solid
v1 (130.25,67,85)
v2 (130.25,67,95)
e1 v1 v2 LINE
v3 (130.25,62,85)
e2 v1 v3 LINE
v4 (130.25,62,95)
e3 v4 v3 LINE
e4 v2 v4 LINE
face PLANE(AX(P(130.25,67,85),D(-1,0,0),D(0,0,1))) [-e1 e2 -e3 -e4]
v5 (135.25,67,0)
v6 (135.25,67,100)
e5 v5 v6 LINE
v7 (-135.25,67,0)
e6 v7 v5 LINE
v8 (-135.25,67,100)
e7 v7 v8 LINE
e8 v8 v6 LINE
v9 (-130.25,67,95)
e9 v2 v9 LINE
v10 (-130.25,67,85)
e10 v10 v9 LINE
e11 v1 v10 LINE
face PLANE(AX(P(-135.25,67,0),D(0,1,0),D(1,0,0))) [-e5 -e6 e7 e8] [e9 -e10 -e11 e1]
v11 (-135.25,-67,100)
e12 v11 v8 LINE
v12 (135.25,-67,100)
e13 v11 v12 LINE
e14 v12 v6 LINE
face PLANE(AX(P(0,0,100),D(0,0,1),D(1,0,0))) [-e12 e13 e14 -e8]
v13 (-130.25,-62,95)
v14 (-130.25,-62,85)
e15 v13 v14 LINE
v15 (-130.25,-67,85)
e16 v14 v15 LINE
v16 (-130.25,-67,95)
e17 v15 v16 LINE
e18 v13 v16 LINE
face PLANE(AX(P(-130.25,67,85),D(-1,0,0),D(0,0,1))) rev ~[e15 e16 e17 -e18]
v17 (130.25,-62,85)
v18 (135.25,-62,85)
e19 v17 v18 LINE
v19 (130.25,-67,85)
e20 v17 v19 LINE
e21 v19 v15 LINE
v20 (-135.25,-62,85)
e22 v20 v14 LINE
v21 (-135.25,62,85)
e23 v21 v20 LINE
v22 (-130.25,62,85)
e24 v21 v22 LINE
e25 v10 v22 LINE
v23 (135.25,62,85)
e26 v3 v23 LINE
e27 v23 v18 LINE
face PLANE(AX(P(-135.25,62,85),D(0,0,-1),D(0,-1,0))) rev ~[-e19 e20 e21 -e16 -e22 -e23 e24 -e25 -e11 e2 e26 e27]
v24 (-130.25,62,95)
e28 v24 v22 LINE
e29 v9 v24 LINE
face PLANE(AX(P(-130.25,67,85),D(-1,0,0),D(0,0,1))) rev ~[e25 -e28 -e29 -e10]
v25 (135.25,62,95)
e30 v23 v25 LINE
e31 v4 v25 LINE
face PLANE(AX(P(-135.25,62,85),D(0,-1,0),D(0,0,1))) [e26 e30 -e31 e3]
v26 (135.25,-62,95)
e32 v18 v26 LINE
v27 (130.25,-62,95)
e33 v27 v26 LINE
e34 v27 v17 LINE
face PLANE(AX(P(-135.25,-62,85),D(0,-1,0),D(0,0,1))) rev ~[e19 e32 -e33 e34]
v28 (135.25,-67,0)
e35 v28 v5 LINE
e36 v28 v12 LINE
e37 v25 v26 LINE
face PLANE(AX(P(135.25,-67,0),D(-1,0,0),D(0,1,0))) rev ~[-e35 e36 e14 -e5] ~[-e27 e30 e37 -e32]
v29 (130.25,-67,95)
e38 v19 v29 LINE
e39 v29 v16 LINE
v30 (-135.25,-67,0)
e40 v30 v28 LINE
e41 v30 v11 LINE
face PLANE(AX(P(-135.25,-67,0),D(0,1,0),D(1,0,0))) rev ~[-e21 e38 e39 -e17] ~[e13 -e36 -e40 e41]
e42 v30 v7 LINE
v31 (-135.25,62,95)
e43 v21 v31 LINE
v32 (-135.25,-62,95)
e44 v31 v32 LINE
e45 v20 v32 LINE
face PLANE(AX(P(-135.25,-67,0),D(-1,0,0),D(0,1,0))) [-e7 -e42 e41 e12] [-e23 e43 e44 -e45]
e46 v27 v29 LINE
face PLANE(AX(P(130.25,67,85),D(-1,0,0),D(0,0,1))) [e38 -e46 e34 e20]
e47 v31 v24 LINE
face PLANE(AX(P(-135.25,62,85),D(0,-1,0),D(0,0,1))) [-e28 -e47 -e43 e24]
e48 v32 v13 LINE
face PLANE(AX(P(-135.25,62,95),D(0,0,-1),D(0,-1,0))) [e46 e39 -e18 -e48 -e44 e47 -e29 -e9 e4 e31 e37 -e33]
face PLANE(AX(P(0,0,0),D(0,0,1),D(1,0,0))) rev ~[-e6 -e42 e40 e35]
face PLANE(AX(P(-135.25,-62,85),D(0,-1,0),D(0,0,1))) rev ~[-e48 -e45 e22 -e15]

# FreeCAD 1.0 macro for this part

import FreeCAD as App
import Part
import Sketcher


def add_polygon(sketch, points):
    """Adds a closed chain of lines whose ends are joined by coincident constraints."""
    first, n = sketch.GeometryCount, len(points)
    for a, b in zip(points, points[1:] + points[:1]):
        sketch.addGeometry(Part.LineSegment(App.Vector(*a, 0), App.Vector(*b, 0)), False)
    for i in range(n):
        sketch.addConstraint(Sketcher.Constraint("Coincident", first + i, 2, first + (i + 1) % n, 1))

doc = App.newDocument("Part")
body = doc.addObject("PartDesign::Body", "Body")

# Sketch on XY plane
sketch1 = body.newObject("Sketcher::SketchObject", "Sketch")
sketch1.AttachmentSupport = (doc.getObject("XY_Plane"), [""])
sketch1.MapMode = "FlatFace"
add_polygon(sketch1, [(-135, 67), (-135, -67), (135, -67), (135, 67)])  # lines 0-3
sketch1.addConstraint(Sketcher.Constraint("Vertical", 0))
sketch1.addConstraint(Sketcher.Constraint("Horizontal", 1))
sketch1.addConstraint(Sketcher.Constraint("Vertical", 2))
sketch1.addConstraint(Sketcher.Constraint("Horizontal", 3))
sketch1.addConstraint(Sketcher.Constraint("Symmetric", 0, 2, 2, 2, -1, 1))
sketch1.addConstraint(Sketcher.Constraint("DistanceY", 0, 2, 0, 1, 134.0))
sketch1.addConstraint(Sketcher.Constraint("DistanceX", 1, 1, 1, 2, 270.5))
pad1 = body.newObject("PartDesign::Pad", "Pad")
pad1.Profile = sketch1
pad1.Length = 100

# Sketch on YZ plane
sketch2 = body.newObject("Sketcher::SketchObject", "Sketch001")
sketch2.AttachmentSupport = (doc.getObject("YZ_Plane"), [""])
sketch2.MapMode = "FlatFace"
sketch2.AttachmentOffset = App.Placement(App.Vector(0, 0, -135.25), App.Rotation())
add_polygon(sketch2, [(62, 95), (62, 85), (-62, 85), (-62, 95)])  # lines 0-3
sketch2.addConstraint(Sketcher.Constraint("Vertical", 0))
sketch2.addConstraint(Sketcher.Constraint("Horizontal", 1))
sketch2.addConstraint(Sketcher.Constraint("Vertical", 2))
sketch2.addConstraint(Sketcher.Constraint("Horizontal", 3))
sketch2.addConstraint(Sketcher.Constraint("DistanceX", 1, 2, 1, 1, 124.0))
sketch2.addConstraint(Sketcher.Constraint("DistanceY", 0, 2, 0, 1, 10.0))
sketch2.addConstraint(Sketcher.Constraint("DistanceX", -1, 1, 0, 2, 62.0))
sketch2.addConstraint(Sketcher.Constraint("DistanceY", -1, 1, 0, 2, 85.0))
pocket1 = body.newObject("PartDesign::Pocket", "Pocket")
pocket1.Profile = sketch2
pocket1.Type = "ThroughAll"
pocket1.Reversed = True

# Sketch on XZ plane
sketch3 = body.newObject("Sketcher::SketchObject", "Sketch002")
sketch3.AttachmentSupport = (doc.getObject("XZ_Plane"), [""])
sketch3.MapMode = "FlatFace"
sketch3.AttachmentOffset = App.Placement(App.Vector(0, 0, -67), App.Rotation())
add_polygon(sketch3, [(130, 95), (130, 85), (-130, 85), (-130, 95)])  # lines 0-3
sketch3.addConstraint(Sketcher.Constraint("Vertical", 0))
sketch3.addConstraint(Sketcher.Constraint("Horizontal", 1))
sketch3.addConstraint(Sketcher.Constraint("Vertical", 2))
sketch3.addConstraint(Sketcher.Constraint("Horizontal", 3))
sketch3.addConstraint(Sketcher.Constraint("DistanceY", 0, 2, 0, 1, 10.0))
sketch3.addConstraint(Sketcher.Constraint("DistanceX", 1, 2, 1, 1, 260.5))
sketch3.addConstraint(Sketcher.Constraint("DistanceY", -1, 1, 0, 2, 85.0))
sketch3.addConstraint(Sketcher.Constraint("DistanceX", -1, 1, 0, 2, 130.25))
pocket2 = body.newObject("PartDesign::Pocket", "Pocket001")
pocket2.Profile = sketch3
pocket2.Type = "ThroughAll"
pocket2.Reversed = True

doc.recompute()
